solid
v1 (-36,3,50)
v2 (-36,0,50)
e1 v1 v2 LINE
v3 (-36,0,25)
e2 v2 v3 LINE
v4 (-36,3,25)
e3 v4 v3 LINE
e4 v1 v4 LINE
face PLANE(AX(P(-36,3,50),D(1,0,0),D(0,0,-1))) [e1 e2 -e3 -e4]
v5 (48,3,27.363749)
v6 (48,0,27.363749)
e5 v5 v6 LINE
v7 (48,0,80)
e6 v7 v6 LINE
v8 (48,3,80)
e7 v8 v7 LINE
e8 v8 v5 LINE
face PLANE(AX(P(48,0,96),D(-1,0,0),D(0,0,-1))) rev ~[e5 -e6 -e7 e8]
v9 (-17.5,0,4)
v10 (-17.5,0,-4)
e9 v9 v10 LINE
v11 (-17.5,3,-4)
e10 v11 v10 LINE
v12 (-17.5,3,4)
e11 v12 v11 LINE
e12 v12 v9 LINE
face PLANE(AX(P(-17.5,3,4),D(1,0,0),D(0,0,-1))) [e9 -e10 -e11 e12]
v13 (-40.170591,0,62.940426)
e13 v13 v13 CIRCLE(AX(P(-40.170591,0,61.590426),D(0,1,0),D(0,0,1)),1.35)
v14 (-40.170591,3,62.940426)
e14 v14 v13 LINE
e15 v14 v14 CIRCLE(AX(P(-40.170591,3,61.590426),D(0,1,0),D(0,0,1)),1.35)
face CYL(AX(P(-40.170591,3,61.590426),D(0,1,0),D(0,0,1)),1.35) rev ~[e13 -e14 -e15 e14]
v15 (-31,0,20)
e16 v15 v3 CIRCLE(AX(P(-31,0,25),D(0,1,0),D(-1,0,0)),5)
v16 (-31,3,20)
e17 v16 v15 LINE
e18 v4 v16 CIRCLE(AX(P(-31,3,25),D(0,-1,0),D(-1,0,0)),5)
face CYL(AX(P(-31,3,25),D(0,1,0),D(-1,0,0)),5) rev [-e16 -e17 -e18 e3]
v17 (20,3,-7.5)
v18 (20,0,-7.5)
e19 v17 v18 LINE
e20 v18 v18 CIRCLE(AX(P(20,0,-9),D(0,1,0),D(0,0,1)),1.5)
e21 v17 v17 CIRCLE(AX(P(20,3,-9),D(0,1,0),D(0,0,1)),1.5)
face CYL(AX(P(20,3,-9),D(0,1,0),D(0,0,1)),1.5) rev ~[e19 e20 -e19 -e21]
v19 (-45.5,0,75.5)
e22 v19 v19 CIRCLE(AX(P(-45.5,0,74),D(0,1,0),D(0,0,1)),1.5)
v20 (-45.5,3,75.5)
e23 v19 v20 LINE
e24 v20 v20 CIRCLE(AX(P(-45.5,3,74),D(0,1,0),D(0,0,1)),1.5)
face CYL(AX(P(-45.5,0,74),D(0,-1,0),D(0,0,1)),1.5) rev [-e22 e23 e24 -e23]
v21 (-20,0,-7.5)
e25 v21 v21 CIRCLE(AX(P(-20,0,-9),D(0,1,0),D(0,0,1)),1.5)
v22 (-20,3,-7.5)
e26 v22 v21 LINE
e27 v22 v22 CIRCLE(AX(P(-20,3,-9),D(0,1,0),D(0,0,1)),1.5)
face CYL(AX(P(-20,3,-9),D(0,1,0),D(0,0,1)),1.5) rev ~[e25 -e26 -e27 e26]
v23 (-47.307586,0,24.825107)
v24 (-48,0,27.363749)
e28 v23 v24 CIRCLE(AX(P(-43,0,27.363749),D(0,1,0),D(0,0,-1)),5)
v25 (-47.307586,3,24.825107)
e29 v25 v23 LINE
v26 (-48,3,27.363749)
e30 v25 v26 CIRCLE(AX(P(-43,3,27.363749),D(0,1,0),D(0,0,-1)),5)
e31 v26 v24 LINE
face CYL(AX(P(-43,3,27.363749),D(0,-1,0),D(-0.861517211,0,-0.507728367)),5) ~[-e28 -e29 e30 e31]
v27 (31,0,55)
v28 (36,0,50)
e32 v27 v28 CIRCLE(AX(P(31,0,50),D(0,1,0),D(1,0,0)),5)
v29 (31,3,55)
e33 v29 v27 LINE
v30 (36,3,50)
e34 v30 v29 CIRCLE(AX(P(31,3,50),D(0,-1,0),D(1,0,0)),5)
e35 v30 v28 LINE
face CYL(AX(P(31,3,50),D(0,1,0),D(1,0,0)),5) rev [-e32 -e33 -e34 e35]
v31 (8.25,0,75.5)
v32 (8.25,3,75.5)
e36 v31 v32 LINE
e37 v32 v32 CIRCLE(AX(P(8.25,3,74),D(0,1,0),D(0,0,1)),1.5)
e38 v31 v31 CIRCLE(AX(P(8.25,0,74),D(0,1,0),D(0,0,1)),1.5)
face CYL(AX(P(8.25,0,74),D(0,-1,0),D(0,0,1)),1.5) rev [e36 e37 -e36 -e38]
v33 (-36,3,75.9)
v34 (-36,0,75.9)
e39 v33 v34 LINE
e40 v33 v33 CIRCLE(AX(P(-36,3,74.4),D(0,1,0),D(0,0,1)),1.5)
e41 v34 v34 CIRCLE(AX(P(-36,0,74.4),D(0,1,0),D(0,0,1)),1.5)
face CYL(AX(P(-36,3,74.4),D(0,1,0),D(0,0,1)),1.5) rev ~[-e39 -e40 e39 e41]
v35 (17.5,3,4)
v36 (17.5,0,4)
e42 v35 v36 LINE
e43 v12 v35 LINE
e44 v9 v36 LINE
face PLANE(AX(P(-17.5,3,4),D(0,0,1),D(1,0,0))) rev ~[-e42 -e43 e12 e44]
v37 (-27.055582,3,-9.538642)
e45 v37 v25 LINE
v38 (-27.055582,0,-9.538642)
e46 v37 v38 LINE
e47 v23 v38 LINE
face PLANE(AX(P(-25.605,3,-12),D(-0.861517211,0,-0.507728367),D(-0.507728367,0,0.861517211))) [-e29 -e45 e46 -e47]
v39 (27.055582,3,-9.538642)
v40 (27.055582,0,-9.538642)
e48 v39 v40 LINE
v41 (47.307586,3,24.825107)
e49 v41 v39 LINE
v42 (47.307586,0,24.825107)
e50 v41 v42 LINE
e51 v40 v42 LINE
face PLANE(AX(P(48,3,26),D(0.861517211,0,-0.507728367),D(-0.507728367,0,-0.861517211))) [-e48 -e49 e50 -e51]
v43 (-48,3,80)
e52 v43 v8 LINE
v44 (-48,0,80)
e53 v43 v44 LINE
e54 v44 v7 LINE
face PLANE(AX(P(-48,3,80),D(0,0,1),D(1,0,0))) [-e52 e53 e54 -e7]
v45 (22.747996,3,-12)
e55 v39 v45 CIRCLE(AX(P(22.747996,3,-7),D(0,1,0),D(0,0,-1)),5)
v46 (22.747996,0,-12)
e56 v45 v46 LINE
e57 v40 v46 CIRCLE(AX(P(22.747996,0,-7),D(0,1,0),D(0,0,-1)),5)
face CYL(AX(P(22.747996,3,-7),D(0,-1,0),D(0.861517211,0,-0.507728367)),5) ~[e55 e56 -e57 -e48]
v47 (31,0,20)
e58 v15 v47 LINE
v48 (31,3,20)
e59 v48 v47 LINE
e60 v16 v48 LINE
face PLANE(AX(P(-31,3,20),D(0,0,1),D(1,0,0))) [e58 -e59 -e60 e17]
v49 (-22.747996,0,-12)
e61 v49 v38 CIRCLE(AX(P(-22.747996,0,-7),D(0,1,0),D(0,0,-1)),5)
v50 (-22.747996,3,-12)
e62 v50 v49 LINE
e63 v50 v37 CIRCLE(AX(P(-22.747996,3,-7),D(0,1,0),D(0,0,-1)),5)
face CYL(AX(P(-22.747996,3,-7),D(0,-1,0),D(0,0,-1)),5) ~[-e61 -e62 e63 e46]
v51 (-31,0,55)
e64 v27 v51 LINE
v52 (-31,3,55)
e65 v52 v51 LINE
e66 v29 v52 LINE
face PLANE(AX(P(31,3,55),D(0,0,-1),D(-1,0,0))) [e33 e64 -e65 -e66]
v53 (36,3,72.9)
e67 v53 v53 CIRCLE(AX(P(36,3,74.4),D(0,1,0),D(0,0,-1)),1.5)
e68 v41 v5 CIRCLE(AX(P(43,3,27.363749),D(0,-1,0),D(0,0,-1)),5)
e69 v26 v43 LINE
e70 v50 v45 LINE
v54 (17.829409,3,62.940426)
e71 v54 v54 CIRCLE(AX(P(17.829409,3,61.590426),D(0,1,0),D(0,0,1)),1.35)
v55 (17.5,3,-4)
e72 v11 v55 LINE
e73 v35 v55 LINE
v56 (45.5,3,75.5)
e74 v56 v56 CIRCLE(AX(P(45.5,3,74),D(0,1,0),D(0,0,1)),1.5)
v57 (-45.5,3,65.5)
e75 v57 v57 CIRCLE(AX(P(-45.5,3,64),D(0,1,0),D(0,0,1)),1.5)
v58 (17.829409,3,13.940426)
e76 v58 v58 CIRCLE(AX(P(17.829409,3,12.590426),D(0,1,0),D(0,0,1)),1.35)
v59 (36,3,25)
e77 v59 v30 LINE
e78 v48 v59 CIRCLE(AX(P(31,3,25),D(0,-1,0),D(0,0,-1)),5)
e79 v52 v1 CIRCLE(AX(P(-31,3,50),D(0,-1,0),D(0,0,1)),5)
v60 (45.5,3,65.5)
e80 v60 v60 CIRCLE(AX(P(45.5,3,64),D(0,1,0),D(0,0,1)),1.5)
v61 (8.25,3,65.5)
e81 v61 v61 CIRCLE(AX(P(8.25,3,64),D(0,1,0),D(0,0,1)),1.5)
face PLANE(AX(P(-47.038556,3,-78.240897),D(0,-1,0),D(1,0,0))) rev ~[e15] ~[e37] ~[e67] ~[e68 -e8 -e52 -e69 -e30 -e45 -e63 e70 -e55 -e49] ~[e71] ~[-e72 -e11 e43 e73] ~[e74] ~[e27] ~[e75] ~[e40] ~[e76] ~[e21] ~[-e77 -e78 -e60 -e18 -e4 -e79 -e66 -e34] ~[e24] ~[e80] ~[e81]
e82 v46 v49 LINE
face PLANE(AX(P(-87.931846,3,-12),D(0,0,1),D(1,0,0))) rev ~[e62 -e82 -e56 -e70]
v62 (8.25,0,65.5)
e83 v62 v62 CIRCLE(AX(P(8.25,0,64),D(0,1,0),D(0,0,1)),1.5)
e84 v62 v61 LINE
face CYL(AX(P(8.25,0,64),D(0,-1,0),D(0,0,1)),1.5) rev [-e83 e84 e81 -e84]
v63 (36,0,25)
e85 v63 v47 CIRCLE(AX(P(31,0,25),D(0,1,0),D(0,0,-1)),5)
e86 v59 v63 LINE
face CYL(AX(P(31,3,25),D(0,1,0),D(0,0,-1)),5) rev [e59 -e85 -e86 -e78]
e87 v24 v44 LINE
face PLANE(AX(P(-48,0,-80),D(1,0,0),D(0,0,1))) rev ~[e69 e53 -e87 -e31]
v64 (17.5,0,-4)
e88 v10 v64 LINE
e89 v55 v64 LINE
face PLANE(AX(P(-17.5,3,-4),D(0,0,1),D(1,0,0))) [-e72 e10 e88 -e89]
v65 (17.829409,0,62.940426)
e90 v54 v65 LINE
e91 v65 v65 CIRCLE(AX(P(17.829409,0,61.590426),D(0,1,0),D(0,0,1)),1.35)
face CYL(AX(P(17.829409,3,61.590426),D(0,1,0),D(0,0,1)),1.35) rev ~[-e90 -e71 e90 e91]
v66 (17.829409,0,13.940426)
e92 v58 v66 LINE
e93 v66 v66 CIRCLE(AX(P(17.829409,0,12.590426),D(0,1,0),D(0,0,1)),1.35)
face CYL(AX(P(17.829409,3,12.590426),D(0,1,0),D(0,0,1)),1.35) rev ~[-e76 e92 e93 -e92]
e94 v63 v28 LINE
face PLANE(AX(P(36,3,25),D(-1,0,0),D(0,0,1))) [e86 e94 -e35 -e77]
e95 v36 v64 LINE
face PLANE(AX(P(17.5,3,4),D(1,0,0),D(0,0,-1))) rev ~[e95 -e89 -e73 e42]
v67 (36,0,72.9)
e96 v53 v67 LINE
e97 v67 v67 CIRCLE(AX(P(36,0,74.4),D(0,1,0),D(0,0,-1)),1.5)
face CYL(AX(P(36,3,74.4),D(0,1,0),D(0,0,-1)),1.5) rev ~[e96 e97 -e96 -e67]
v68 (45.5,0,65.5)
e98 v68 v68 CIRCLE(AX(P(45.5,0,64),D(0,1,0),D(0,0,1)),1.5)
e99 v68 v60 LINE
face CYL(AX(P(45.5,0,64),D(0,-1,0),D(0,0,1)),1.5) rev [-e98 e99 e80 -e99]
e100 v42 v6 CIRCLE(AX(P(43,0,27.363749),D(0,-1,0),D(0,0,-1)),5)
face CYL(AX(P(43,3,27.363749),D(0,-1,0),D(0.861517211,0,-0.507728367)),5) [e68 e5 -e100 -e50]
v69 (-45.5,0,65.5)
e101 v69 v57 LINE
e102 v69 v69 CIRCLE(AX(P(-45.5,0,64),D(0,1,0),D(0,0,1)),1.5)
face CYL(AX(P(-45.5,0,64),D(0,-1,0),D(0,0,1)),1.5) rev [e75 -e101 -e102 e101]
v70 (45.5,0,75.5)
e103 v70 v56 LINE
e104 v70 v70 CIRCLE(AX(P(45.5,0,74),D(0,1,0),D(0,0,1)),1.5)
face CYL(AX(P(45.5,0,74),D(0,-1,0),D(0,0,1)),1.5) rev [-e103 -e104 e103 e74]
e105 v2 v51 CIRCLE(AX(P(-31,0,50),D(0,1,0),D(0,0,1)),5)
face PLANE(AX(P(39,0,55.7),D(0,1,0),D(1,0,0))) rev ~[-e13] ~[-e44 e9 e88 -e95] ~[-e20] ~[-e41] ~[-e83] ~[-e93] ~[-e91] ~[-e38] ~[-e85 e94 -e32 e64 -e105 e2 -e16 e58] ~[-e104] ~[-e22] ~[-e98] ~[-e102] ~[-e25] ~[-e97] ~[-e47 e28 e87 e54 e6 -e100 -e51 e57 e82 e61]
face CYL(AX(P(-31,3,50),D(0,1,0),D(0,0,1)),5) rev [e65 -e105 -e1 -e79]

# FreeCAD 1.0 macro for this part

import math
import FreeCAD as App
import Part
import Sketcher


def edges_at(feature, points):
    """Names of the edges that pass closest to the given points."""
    edges = feature.Shape.Edges
    near = lambda p: min(range(len(edges)), key=lambda i: edges[i].distToShape(Part.Vertex(*p))[0])
    return sorted({f"Edge{near(p) + 1}" for p in points})

doc = App.newDocument("Part")
body = doc.addObject("PartDesign::Body", "Body")

sketch1 = body.newObject("Sketcher::SketchObject", "Sketch")
sketch1.AttachmentSupport = (doc.getObject("XZ_Plane"), [""])
sketch1.MapMode = "FlatFace"
sketch1.addGeometry([
    Part.LineSegment(App.Vector(-48, -80, 0), App.Vector(-48, 96, 0)),
    Part.LineSegment(App.Vector(-48, 96, 0), App.Vector(48, 96, 0)),
    Part.LineSegment(App.Vector(48, 96, 0), App.Vector(48, -80, 0)),
    Part.LineSegment(App.Vector(48, -80, 0), App.Vector(-48, -80, 0)),
    Part.Circle(App.Vector(45.55, 90, 0), App.Vector(0, 0, 1), 1.5),
    Part.Circle(App.Vector(17.55, 90, 0), App.Vector(0, 0, 1), 1.5),
    Part.Circle(App.Vector(45.5, 74, 0), App.Vector(0, 0, 1), 1.5),
    Part.Circle(App.Vector(45.5, 64, 0), App.Vector(0, 0, 1), 1.5),
    Part.Circle(App.Vector(8.25, 74, 0), App.Vector(0, 0, 1), 1.5),
    Part.Circle(App.Vector(8.25, 64, 0), App.Vector(0, 0, 1), 1.5),
    Part.Circle(App.Vector(-17.55, 90, 0), App.Vector(0, 0, 1), 1.5),
    Part.Circle(App.Vector(-45.55, 90, 0), App.Vector(0, 0, 1), 1.5),
    Part.Circle(App.Vector(-45.5, 74, 0), App.Vector(0, 0, 1), 1.5),
    Part.Circle(App.Vector(-45.5, 64, 0), App.Vector(0, 0, 1), 1.5),
    Part.LineSegment(App.Vector(43, 80, 0), App.Vector(34.5, 80, 0)),
    Part.LineSegment(App.Vector(34.5, 80, 0), App.Vector(34.5, 31.4, 0)),
    Part.LineSegment(App.Vector(34.5, 31.4, 0), App.Vector(43.5, 31.4, 0)),
    Part.LineSegment(App.Vector(43.5, 31.4, 0), App.Vector(43.5, 58, 0)),
    Part.LineSegment(App.Vector(43.5, 58, 0), App.Vector(43, 58, 0)),
    Part.LineSegment(App.Vector(43, 58, 0), App.Vector(43, 80, 0)),
    Part.Circle(App.Vector(15.320886, 52.530687, 0), App.Vector(0, 0, 1), 1.65),
    Part.Circle(App.Vector(0.259512, 52.530687, 0), App.Vector(0, 0, 1), 1.65),
    Part.LineSegment(App.Vector(19.5, 59.4, 0), App.Vector(19.5, 31.4, 0)),
    Part.LineSegment(App.Vector(19.5, 31.4, 0), App.Vector(25.5, 31.4, 0)),
    Part.LineSegment(App.Vector(25.5, 31.4, 0), App.Vector(25.5, 59.4, 0)),
    Part.LineSegment(App.Vector(25.5, 59.4, 0), App.Vector(19.5, 59.4, 0)),
    Part.Circle(App.Vector(15.320886, 37.469313, 0), App.Vector(0, 0, 1), 1.65),
    Part.Circle(App.Vector(0.259512, 37.469313, 0), App.Vector(0, 0, 1), 1.65),
], False)
sketch1.addConstraint([
    Sketcher.Constraint("Coincident", 0, 2, 1, 1),
    Sketcher.Constraint("Coincident", 1, 2, 2, 1),
    Sketcher.Constraint("Coincident", 2, 2, 3, 1),
    Sketcher.Constraint("Coincident", 3, 2, 0, 1),
    Sketcher.Constraint("Coincident", 14, 2, 15, 1),
    Sketcher.Constraint("Coincident", 15, 2, 16, 1),
    Sketcher.Constraint("Coincident", 16, 2, 17, 1),
    Sketcher.Constraint("Coincident", 17, 2, 18, 1),
    Sketcher.Constraint("Coincident", 18, 2, 19, 1),
    Sketcher.Constraint("Coincident", 19, 2, 14, 1),
    Sketcher.Constraint("Coincident", 22, 2, 23, 1),
    Sketcher.Constraint("Coincident", 23, 2, 24, 1),
    Sketcher.Constraint("Coincident", 24, 2, 25, 1),
    Sketcher.Constraint("Coincident", 25, 2, 22, 1),
    Sketcher.Constraint("Vertical", 0),
    Sketcher.Constraint("Horizontal", 1),
    Sketcher.Constraint("Vertical", 2),
    Sketcher.Constraint("Horizontal", 3),
    Sketcher.Constraint("Horizontal", 14),
    Sketcher.Constraint("Vertical", 15),
    Sketcher.Constraint("Horizontal", 16),
    Sketcher.Constraint("Vertical", 17),
    Sketcher.Constraint("Horizontal", 18),
    Sketcher.Constraint("Vertical", 19),
    Sketcher.Constraint("Vertical", 22),
    Sketcher.Constraint("Horizontal", 23),
    Sketcher.Constraint("Vertical", 24),
    Sketcher.Constraint("Horizontal", 25),
    Sketcher.Constraint("Equal", 4, 5),
    Sketcher.Constraint("Equal", 5, 6),
    Sketcher.Constraint("Equal", 6, 7),
    Sketcher.Constraint("Equal", 7, 8),
    Sketcher.Constraint("Equal", 8, 9),
    Sketcher.Constraint("Equal", 9, 10),
    Sketcher.Constraint("Equal", 10, 11),
    Sketcher.Constraint("Equal", 11, 12),
    Sketcher.Constraint("Equal", 12, 13),
    Sketcher.Constraint("Equal", 20, 21),
    Sketcher.Constraint("Equal", 21, 26),
    Sketcher.Constraint("Equal", 26, 27),
    Sketcher.Constraint("Symmetric", 5, 3, 10, 3, -2),
    Sketcher.Constraint("Symmetric", 4, 3, 11, 3, -2),
    Sketcher.Constraint("Symmetric", 6, 3, 12, 3, -2),
    Sketcher.Constraint("Symmetric", 7, 3, 13, 3, -2),
    Sketcher.Constraint("Horizontal", 4, 3, 5, 3),
    Sketcher.Constraint("Horizontal", 6, 3, 8, 3),
    Sketcher.Constraint("Horizontal", 7, 3, 9, 3),
    Sketcher.Constraint("Horizontal", 20, 3, 21, 3),
    Sketcher.Constraint("Horizontal", 26, 3, 27, 3),
    Sketcher.Constraint("Horizontal", 16, 2, 22, 2),
    Sketcher.Constraint("Vertical", 6, 3, 7, 3),
    Sketcher.Constraint("Vertical", 8, 3, 9, 3),
    Sketcher.Constraint("Vertical", 20, 3, 26, 3),
    Sketcher.Constraint("Vertical", 21, 3, 27, 3),
    Sketcher.Constraint("Diameter", 4, 3.0),
    Sketcher.Constraint("Diameter", 20, 3.3),
    Sketcher.Constraint("DistanceX", 1, 1, 1, 2, 96.0),
    Sketcher.Constraint("DistanceX", 16, 1, 16, 2, 9.0),
    Sketcher.Constraint("DistanceX", 23, 1, 23, 2, 6.0),
    Sketcher.Constraint("DistanceY", 0, 1, 0, 2, 176.0),
    Sketcher.Constraint("DistanceY", 19, 1, 19, 2, 22.0),
    Sketcher.Constraint("DistanceY", 22, 2, 22, 1, 28.0),
    Sketcher.Constraint("DistanceX", 14, 2, 14, 1, 8.5),
    Sketcher.Constraint("DistanceY", 15, 2, 15, 1, 48.6),
    Sketcher.Constraint("DistanceY", -1, 1, 4, 3, 90.0),
    Sketcher.Constraint("DistanceY", -1, 1, 6, 3, 74.0),
    Sketcher.Constraint("DistanceY", -1, 1, 7, 3, 64.0),
    Sketcher.Constraint("DistanceX", 0, 2, -1, 1, 48.0),
    Sketcher.Constraint("DistanceY", -1, 1, 0, 2, 96.0),
    Sketcher.Constraint("DistanceY", -1, 1, 14, 2, 80.0),
    Sketcher.Constraint("DistanceX", -1, 1, 18, 2, 43.0),
    Sketcher.Constraint("DistanceX", 5, 3, 4, 3, 28.0),
    Sketcher.Constraint("DistanceX", 14, 2, 6, 3, 11.0),
    Sketcher.Constraint("DistanceX", 22, 2, 15, 2, 15.0),
    Sketcher.Constraint("DistanceX", 8, 3, 5, 3, 9.3),
    Sketcher.Constraint("DistanceX", 10, 3, 8, 3, 25.8),
    Sketcher.Constraint("DistanceX", -1, 1, 21, 3, 0.259512),
    Sketcher.Constraint("DistanceX", -1, 1, 20, 3, 15.320886),
    Sketcher.Constraint("DistanceY", -1, 1, 20, 3, 52.530687),
    Sketcher.Constraint("DistanceY", -1, 1, 26, 3, 37.469313),
])
pad1 = body.newObject("PartDesign::Pad", "Pad")
pad1.Profile = sketch1
pad1.Length = 3
pad1.Reversed = True

sketch2 = body.newObject("Sketcher::SketchObject", "Sketch001")
sketch2.AttachmentSupport = (doc.getObject("XZ_Plane"), [""])
sketch2.MapMode = "FlatFace"
sketch2.AttachmentOffset = App.Placement(App.Vector(0, 0, -3), App.Rotation())
sketch2.addGeometry(Part.Circle(App.Vector(0, -9, 0), App.Vector(0, 0, 1), 1.5), False)
sketch2.addConstraint([
    Sketcher.Constraint("PointOnObject", 0, 3, -2),
    Sketcher.Constraint("Diameter", 0, 3.0),
    Sketcher.Constraint("DistanceY", 0, 3, -1, 1, 9.0),
])
pocket1 = body.newObject("PartDesign::Pocket", "Pocket")
pocket1.Profile = sketch2
pocket1.Type = "UpToFirst"
pocket1.Reversed = True

sketch3 = body.newObject("Sketcher::SketchObject", "Sketch002")
sketch3.AttachmentSupport = (doc.getObject("XZ_Plane"), [""])
sketch3.MapMode = "FlatFace"
sketch3.AttachmentOffset = App.Placement(App.Vector(0, 0, -3), App.Rotation())
sketch3.addGeometry([
    Part.LineSegment(App.Vector(25.605, -80, 0), App.Vector(25.605, -12, 0)),
    Part.LineSegment(App.Vector(25.605, -12, 0), App.Vector(48, -12, 0)),
    Part.LineSegment(App.Vector(48, -12, 0), App.Vector(48, -80, 0)),
    Part.LineSegment(App.Vector(48, -80, 0), App.Vector(25.605, -80, 0)),
], False)
sketch3.addConstraint([
    Sketcher.Constraint("Coincident", 0, 2, 1, 1),
    Sketcher.Constraint("Coincident", 1, 2, 2, 1),
    Sketcher.Constraint("Coincident", 2, 2, 3, 1),
    Sketcher.Constraint("Coincident", 3, 2, 0, 1),
    Sketcher.Constraint("Vertical", 0),
    Sketcher.Constraint("Horizontal", 1),
    Sketcher.Constraint("Vertical", 2),
    Sketcher.Constraint("Horizontal", 3),
    Sketcher.Constraint("DistanceY", 0, 1, 0, 2, 68.0),
    Sketcher.Constraint("DistanceY", 0, 2, -1, 1, 12.0),
    Sketcher.Constraint("DistanceX", -1, 1, 1, 2, 48.0),
    Sketcher.Constraint("DistanceX", 1, 1, 1, 2, 22.395),
])
pocket2 = body.newObject("PartDesign::Pocket", "Pocket001")
pocket2.Profile = sketch3
pocket2.Type = "UpToFirst"
pocket2.Reversed = True

sketch4 = body.newObject("Sketcher::SketchObject", "Sketch003")
sketch4.AttachmentSupport = (doc.getObject("XZ_Plane"), [""])
sketch4.MapMode = "FlatFace"
sketch4.AttachmentOffset = App.Placement(App.Vector(0, 0, -3), App.Rotation())
sketch4.addGeometry([
    Part.LineSegment(App.Vector(-48, -80, 0), App.Vector(-48, -12, 0)),
    Part.LineSegment(App.Vector(-48, -12, 0), App.Vector(-25.605, -12, 0)),
    Part.LineSegment(App.Vector(-25.605, -12, 0), App.Vector(-25.605, -80, 0)),
    Part.LineSegment(App.Vector(-25.605, -80, 0), App.Vector(-48, -80, 0)),
], False)
sketch4.addConstraint([
    Sketcher.Constraint("Coincident", 0, 2, 1, 1),
    Sketcher.Constraint("Coincident", 1, 2, 2, 1),
    Sketcher.Constraint("Coincident", 2, 2, 3, 1),
    Sketcher.Constraint("Coincident", 3, 2, 0, 1),
    Sketcher.Constraint("Vertical", 0),
    Sketcher.Constraint("Horizontal", 1),
    Sketcher.Constraint("Vertical", 2),
    Sketcher.Constraint("Horizontal", 3),
    Sketcher.Constraint("DistanceY", 0, 1, 0, 2, 68.0),
    Sketcher.Constraint("DistanceX", 0, 2, -1, 1, 48.0),
    Sketcher.Constraint("DistanceY", 0, 2, -1, 1, 12.0),
    Sketcher.Constraint("DistanceX", 1, 1, 1, 2, 22.395),
])
pocket3 = body.newObject("PartDesign::Pocket", "Pocket002")
pocket3.Profile = sketch4
pocket3.Type = "UpToFirst"
pocket3.Reversed = True

sketch5 = body.newObject("Sketcher::SketchObject", "Sketch004")
sketch5.AttachmentSupport = (doc.getObject("XZ_Plane"), [""])
sketch5.MapMode = "FlatFace"
sketch5.AttachmentOffset = App.Placement(App.Vector(0, 0, -3), App.Rotation())
sketch5.addGeometry([
    Part.LineSegment(App.Vector(-25.605, -85, 0), App.Vector(-25.605, -80, 0)),
    Part.LineSegment(App.Vector(-25.605, -80, 0), App.Vector(25.605, -80, 0)),
    Part.LineSegment(App.Vector(25.605, -80, 0), App.Vector(25.605, -85, 0)),
    Part.LineSegment(App.Vector(25.605, -85, 0), App.Vector(-25.605, -85, 0)),
], False)
sketch5.addConstraint([
    Sketcher.Constraint("Coincident", 0, 2, 1, 1),
    Sketcher.Constraint("Coincident", 1, 2, 2, 1),
    Sketcher.Constraint("Coincident", 2, 2, 3, 1),
    Sketcher.Constraint("Coincident", 3, 2, 0, 1),
    Sketcher.Constraint("Vertical", 0),
    Sketcher.Constraint("Horizontal", 1),
    Sketcher.Constraint("Vertical", 2),
    Sketcher.Constraint("Horizontal", 3),
    Sketcher.Constraint("DistanceY", 0, 1, 0, 2, 5.0),
    Sketcher.Constraint("DistanceY", 0, 2, -1, 1, 80.0),
    Sketcher.Constraint("DistanceX", 1, 1, 1, 2, 51.21),
    Sketcher.Constraint("DistanceX", 0, 2, -1, 1, 25.605),
])
pad2 = body.newObject("PartDesign::Pad", "Pad001")
pad2.Profile = sketch5
pad2.Length = 3

sketch6 = body.newObject("Sketcher::SketchObject", "Sketch005")
sketch6.AttachmentSupport = (doc.getObject("XZ_Plane"), [""])
sketch6.MapMode = "FlatFace"
sketch6.AttachmentOffset = App.Placement(App.Vector(0, 0, -3), App.Rotation())
sketch6.addGeometry(Part.Circle(App.Vector(-17.8495, -79.268381, 0), App.Vector(0, 0, 1), 1.5), False)
sketch6.addConstraint([
    Sketcher.Constraint("Diameter", 0, 3.0),
    Sketcher.Constraint("DistanceX", 0, 3, -1, 1, 17.8495),
    Sketcher.Constraint("DistanceY", 0, 3, -1, 1, 79.268381),
])
pocket4 = body.newObject("PartDesign::Pocket", "Pocket003")
pocket4.Profile = sketch6
pocket4.Type = "UpToFirst"
pocket4.Reversed = True

sketch7 = body.newObject("Sketcher::SketchObject", "Sketch006")
sketch7.AttachmentSupport = (doc.getObject("XZ_Plane"), [""])
sketch7.MapMode = "FlatFace"
sketch7.AttachmentOffset = App.Placement(App.Vector(0, 0, -3), App.Rotation())
sketch7.addGeometry(Part.Circle(App.Vector(17.8495, -79.268381, 0), App.Vector(0, 0, 1), 1.5), False)
sketch7.addConstraint([
    Sketcher.Constraint("Diameter", 0, 3.0),
    Sketcher.Constraint("DistanceX", -1, 1, 0, 3, 17.8495),
    Sketcher.Constraint("DistanceY", 0, 3, -1, 1, 79.268381),
])
pocket5 = body.newObject("PartDesign::Pocket", "Pocket004")
pocket5.Profile = sketch7
pocket5.Type = "UpToFirst"
pocket5.Reversed = True

sketch8 = body.newObject("Sketcher::SketchObject", "Sketch007")
sketch8.AttachmentSupport = (doc.getObject("XZ_Plane"), [""])
sketch8.MapMode = "FlatFace"
sketch8.AttachmentOffset = App.Placement(App.Vector(0, 0, -3), App.Rotation())
sketch8.addGeometry(Part.Circle(App.Vector(-22.690797, -44, 0), App.Vector(0, 0, 1), 1.5), False)
sketch8.addConstraint([
    Sketcher.Constraint("Diameter", 0, 3.0),
    Sketcher.Constraint("DistanceY", 0, 3, -1, 1, 44.0),
    Sketcher.Constraint("DistanceX", 0, 3, -1, 1, 22.690797),
])
pocket6 = body.newObject("PartDesign::Pocket", "Pocket005")
pocket6.Profile = sketch8
pocket6.Type = "UpToFirst"
pocket6.Reversed = True

sketch9 = body.newObject("Sketcher::SketchObject", "Sketch008")
sketch9.AttachmentSupport = (doc.getObject("XZ_Plane"), [""])
sketch9.MapMode = "FlatFace"
sketch9.AttachmentOffset = App.Placement(App.Vector(0, 0, -3), App.Rotation())
sketch9.addGeometry(Part.Circle(App.Vector(22.690797, -44, 0), App.Vector(0, 0, 1), 1.5), False)
sketch9.addConstraint([
    Sketcher.Constraint("Diameter", 0, 3.0),
    Sketcher.Constraint("DistanceY", 0, 3, -1, 1, 44.0),
    Sketcher.Constraint("DistanceX", -1, 1, 0, 3, 22.690797),
])
pocket7 = body.newObject("PartDesign::Pocket", "Pocket006")
pocket7.Profile = sketch9
pocket7.Type = "UpToFirst"
pocket7.Reversed = True

sketch10 = body.newObject("Sketcher::SketchObject", "Sketch009")
sketch10.AttachmentSupport = (doc.getObject("XZ_Plane"), [""])
sketch10.MapMode = "FlatFace"
sketch10.AttachmentOffset = App.Placement(App.Vector(0, 0, -3), App.Rotation())
sketch10.addGeometry([
    Part.LineSegment(App.Vector(25.605, -12, 0), App.Vector(48, 26, 0)),
    Part.LineSegment(App.Vector(48, 26, 0), App.Vector(48, -12, 0)),
    Part.LineSegment(App.Vector(48, -12, 0), App.Vector(25.605, -12, 0)),
], False)
sketch10.addConstraint([
    Sketcher.Constraint("Coincident", 0, 2, 1, 1),
    Sketcher.Constraint("Coincident", 1, 2, 2, 1),
    Sketcher.Constraint("Coincident", 2, 2, 0, 1),
    Sketcher.Constraint("Vertical", 1),
    Sketcher.Constraint("Horizontal", 2),
    Sketcher.Constraint("DistanceY", 1, 2, 1, 1, 38.0),
    Sketcher.Constraint("DistanceX", -1, 1, 0, 2, 48.0),
    Sketcher.Constraint("DistanceY", -1, 1, 0, 2, 26.0),
    Sketcher.Constraint("DistanceX", 2, 2, 2, 1, 22.395),
])
pocket8 = body.newObject("PartDesign::Pocket", "Pocket007")
pocket8.Profile = sketch10
pocket8.Type = "UpToFirst"
pocket8.Reversed = True

sketch11 = body.newObject("Sketcher::SketchObject", "Sketch010")
sketch11.AttachmentSupport = (doc.getObject("XZ_Plane"), [""])
sketch11.MapMode = "FlatFace"
sketch11.AttachmentOffset = App.Placement(App.Vector(0, 0, -3), App.Rotation())
sketch11.addGeometry([
    Part.LineSegment(App.Vector(-48, -12, 0), App.Vector(-48, 26, 0)),
    Part.LineSegment(App.Vector(-48, 26, 0), App.Vector(-25.605, -12, 0)),
    Part.LineSegment(App.Vector(-25.605, -12, 0), App.Vector(-48, -12, 0)),
], False)
sketch11.addConstraint([
    Sketcher.Constraint("Coincident", 0, 2, 1, 1),
    Sketcher.Constraint("Coincident", 1, 2, 2, 1),
    Sketcher.Constraint("Coincident", 2, 2, 0, 1),
    Sketcher.Constraint("Vertical", 0),
    Sketcher.Constraint("Horizontal", 2),
    Sketcher.Constraint("DistanceY", 0, 1, 0, 2, 38.0),
    Sketcher.Constraint("DistanceX", 0, 2, -1, 1, 48.0),
    Sketcher.Constraint("DistanceY", -1, 1, 0, 2, 26.0),
    Sketcher.Constraint("DistanceX", 2, 2, 2, 1, 22.395),
])
pocket9 = body.newObject("PartDesign::Pocket", "Pocket008")
pocket9.Profile = sketch11
pocket9.Type = "UpToFirst"
pocket9.Reversed = True

sketch12 = body.newObject("Sketcher::SketchObject", "Sketch011")
sketch12.AttachmentSupport = (doc.getObject("XZ_Plane"), [""])
sketch12.MapMode = "FlatFace"
sketch12.addGeometry([
    Part.LineSegment(App.Vector(-45.873799, -40.351536, 0), App.Vector(-25.605, -52.641311, 0)),
    Part.LineSegment(App.Vector(-25.605, -52.641311, 0), App.Vector(-25.605, -35.641311, 0)),
    Part.LineSegment(App.Vector(-25.605, -35.641311, 0), App.Vector(-31.796656, -35.641311, 0)),
    Part.LineSegment(App.Vector(-31.796656, -35.641311, 0), App.Vector(-42.885372, -33.037115, 0)),
    Part.ArcOfCircle(Part.Circle(App.Vector(-43.799894, -36.931168, 0), App.Vector(0, 0, 1), 4), math.radians(76.783537), math.radians(238.769908)),
    Part.Circle(App.Vector(-32.930329, -41.931168, 0), App.Vector(0, 0, 1), 1.5),
    Part.Circle(App.Vector(-43.799894, -36.931168, 0), App.Vector(0, 0, 1), 2.5),
    Part.LineSegment(App.Vector(25.605, -35.641311, 0), App.Vector(25.605, -52.641311, 0)),
    Part.LineSegment(App.Vector(25.605, -52.641311, 0), App.Vector(45.873799, -40.351536, 0)),
    Part.ArcOfCircle(Part.Circle(App.Vector(43.799894, -36.931168, 0), App.Vector(0, 0, 1), 4), math.radians(-58.769908), math.radians(103.216463)),
    Part.LineSegment(App.Vector(42.885372, -33.037115, 0), App.Vector(31.796656, -35.641311, 0)),
    Part.LineSegment(App.Vector(31.796656, -35.641311, 0), App.Vector(25.605, -35.641311, 0)),
    Part.Circle(App.Vector(32.930329, -41.931168, 0), App.Vector(0, 0, 1), 1.5),
    Part.Circle(App.Vector(43.799894, -36.931168, 0), App.Vector(0, 0, 1), 2.5),
], False)
sketch12.addConstraint([
    Sketcher.Constraint("Coincident", 0, 2, 1, 1),
    Sketcher.Constraint("Coincident", 1, 2, 2, 1),
    Sketcher.Constraint("Coincident", 2, 2, 3, 1),
    Sketcher.Constraint("Tangent", 3, 2, 4, 1),
    Sketcher.Constraint("Tangent", 4, 2, 0, 1),
    Sketcher.Constraint("Coincident", 7, 2, 8, 1),
    Sketcher.Constraint("Tangent", 8, 2, 9, 1),
    Sketcher.Constraint("Tangent", 9, 2, 10, 1),
    Sketcher.Constraint("Coincident", 10, 2, 11, 1),
    Sketcher.Constraint("Coincident", 11, 2, 7, 1),
    Sketcher.Constraint("Vertical", 1),
    Sketcher.Constraint("Horizontal", 2),
    Sketcher.Constraint("Vertical", 7),
    Sketcher.Constraint("Horizontal", 11),
    Sketcher.Constraint("Coincident", 6, 3, 4, 3),
    Sketcher.Constraint("Coincident", 13, 3, 9, 3),
    Sketcher.Constraint("Equal", 4, 9),
    Sketcher.Constraint("Equal", 5, 12),
    Sketcher.Constraint("Equal", 6, 13),
    Sketcher.Constraint("Symmetric", 4, 3, 9, 3, -2),
    Sketcher.Constraint("Symmetric", 5, 3, 12, 3, -2),
    Sketcher.Constraint("Symmetric", 0, 2, 7, 2, -2),
    Sketcher.Constraint("Symmetric", 2, 2, 10, 2, -2),
    Sketcher.Constraint("Diameter", 5, 3.0),
    Sketcher.Constraint("Diameter", 6, 5.0),
    Sketcher.Constraint("Radius", 4, 4.0),
    Sketcher.Constraint("DistanceY", 1, 1, 1, 2, 17.0),
    Sketcher.Constraint("DistanceY", 5, 3, 4, 3, 5.0),
    Sketcher.Constraint("DistanceX", 0, 2, 7, 2, 51.21),
    Sketcher.Constraint("DistanceX", 4, 2, -1, 1, 45.873799),
    Sketcher.Constraint("Distance", 3, 11.390411),
    Sketcher.Constraint("DistanceX", 2, 2, 2, 1, 6.191656),
    Sketcher.Constraint("DistanceX", 5, 3, -1, 1, 32.930329),
    Sketcher.Constraint("DistanceY", 0, 2, -1, 1, 52.641311),
])
pad3 = body.newObject("PartDesign::Pad", "Pad002")
pad3.Profile = sketch12
pad3.Length = 3
pad3.Reversed = True

sketch13 = body.newObject("Sketcher::SketchObject", "Sketch012")
sketch13.AttachmentSupport = (doc.getObject("XZ_Plane"), [""])
sketch13.MapMode = "FlatFace"
sketch13.addGeometry([
    Part.LineSegment(App.Vector(-11.899894, -39.441311, 0), App.Vector(-11.899894, -54.741311, 0)),
    Part.LineSegment(App.Vector(-11.899894, -54.741311, 0), App.Vector(12.200106, -54.741311, 0)),
    Part.LineSegment(App.Vector(12.200106, -54.741311, 0), App.Vector(12.200106, -39.441311, 0)),
    Part.LineSegment(App.Vector(12.200106, -39.441311, 0), App.Vector(17.036432, -39.441311, 0)),
    Part.LineSegment(App.Vector(17.036432, -39.441311, 0), App.Vector(17.164018, -32.041311, 0)),
    Part.LineSegment(App.Vector(17.164018, -32.041311, 0), App.Vector(12.200106, -32.041311, 0)),
    Part.LineSegment(App.Vector(12.200106, -32.041311, 0), App.Vector(12.200106, -19.091311, 0)),
    Part.LineSegment(App.Vector(12.200106, -19.091311, 0), App.Vector(-3.799894, -19.091311, 0)),
    Part.LineSegment(App.Vector(-3.799894, -19.091311, 0), App.Vector(-3.799894, -30.391311, 0)),
    Part.LineSegment(App.Vector(-3.799894, -30.391311, 0), App.Vector(-11.899894, -30.391311, 0)),
    Part.LineSegment(App.Vector(-11.899894, -30.391311, 0), App.Vector(-11.899894, -32.041311, 0)),
    Part.LineSegment(App.Vector(-11.899894, -32.041311, 0), App.Vector(-16.849894, -32.041311, 0)),
    Part.LineSegment(App.Vector(-16.849894, -32.041311, 0), App.Vector(-16.849894, -39.441311, 0)),
    Part.LineSegment(App.Vector(-16.849894, -39.441311, 0), App.Vector(-11.899894, -39.441311, 0)),
], False)
sketch13.addConstraint([
    Sketcher.Constraint("Coincident", 0, 2, 1, 1),
    Sketcher.Constraint("Coincident", 1, 2, 2, 1),
    Sketcher.Constraint("Coincident", 2, 2, 3, 1),
    Sketcher.Constraint("Coincident", 3, 2, 4, 1),
    Sketcher.Constraint("Coincident", 4, 2, 5, 1),
    Sketcher.Constraint("Coincident", 5, 2, 6, 1),
    Sketcher.Constraint("Coincident", 6, 2, 7, 1),
    Sketcher.Constraint("Coincident", 7, 2, 8, 1),
    Sketcher.Constraint("Coincident", 8, 2, 9, 1),
    Sketcher.Constraint("Coincident", 9, 2, 10, 1),
    Sketcher.Constraint("Coincident", 10, 2, 11, 1),
    Sketcher.Constraint("Coincident", 11, 2, 12, 1),
    Sketcher.Constraint("Coincident", 12, 2, 13, 1),
    Sketcher.Constraint("Coincident", 13, 2, 0, 1),
    Sketcher.Constraint("Vertical", 0),
    Sketcher.Constraint("Horizontal", 1),
    Sketcher.Constraint("Vertical", 2),
    Sketcher.Constraint("Horizontal", 3),
    Sketcher.Constraint("Horizontal", 5),
    Sketcher.Constraint("Vertical", 6),
    Sketcher.Constraint("Horizontal", 7),
    Sketcher.Constraint("Vertical", 8),
    Sketcher.Constraint("Horizontal", 9),
    Sketcher.Constraint("Vertical", 10),
    Sketcher.Constraint("Horizontal", 11),
    Sketcher.Constraint("Vertical", 12),
    Sketcher.Constraint("Horizontal", 13),
    Sketcher.Constraint("Horizontal", 5, 2, 10, 2),
    Sketcher.Constraint("Horizontal", 3, 2, 12, 2),
    Sketcher.Constraint("Vertical", 2, 2, 5, 2),
    Sketcher.Constraint("Vertical", 0, 2, 9, 2),
    Sketcher.Constraint("DistanceX", 7, 2, 7, 1, 16.0),
    Sketcher.Constraint("DistanceX", 1, 1, 1, 2, 24.1),
    Sketcher.Constraint("DistanceY", 0, 2, 0, 1, 15.3),
    Sketcher.Constraint("DistanceY", 8, 2, 8, 1, 11.3),
    Sketcher.Constraint("DistanceY", 12, 2, 12, 1, 7.4),
    Sketcher.Constraint("DistanceX", 11, 2, 11, 1, 4.95),
    Sketcher.Constraint("DistanceY", 6, 1, 6, 2, 12.95),
    Sketcher.Constraint("Distance", 4, 7.4011),
    Sketcher.Constraint("DistanceX", 3, 1, 3, 2, 4.836326),
    Sketcher.Constraint("DistanceY", 0, 2, -1, 1, 54.741311),
    Sketcher.Constraint("DistanceX", -1, 1, 3, 2, 17.036432),
])
pocket10 = body.newObject("PartDesign::Pocket", "Pocket009")
pocket10.Profile = sketch13
pocket10.Type = "UpToFirst"

sketch14 = body.newObject("Sketcher::SketchObject", "Sketch013")
sketch14.AttachmentSupport = (doc.getObject("XZ_Plane"), [""])
sketch14.MapMode = "FlatFace"
sketch14.AttachmentOffset = App.Placement(App.Vector(0, 0, -3), App.Rotation())
sketch14.addGeometry([
    Part.LineSegment(App.Vector(-16.849894, -29.041311, 0), App.Vector(-16.849894, -44.041311, 0)),
    Part.LineSegment(App.Vector(-16.849894, -44.041311, 0), App.Vector(-11.899894, -44.041311, 0)),
    Part.LineSegment(App.Vector(-11.899894, -44.041311, 0), App.Vector(-11.899894, -29.041311, 0)),
    Part.LineSegment(App.Vector(-11.899894, -29.041311, 0), App.Vector(-16.849894, -29.041311, 0)),
    Part.LineSegment(App.Vector(12.200106, -29.041311, 0), App.Vector(12.200106, -44.041311, 0)),
    Part.LineSegment(App.Vector(12.200106, -44.041311, 0), App.Vector(17.150106, -44.041311, 0)),
    Part.LineSegment(App.Vector(17.150106, -44.041311, 0), App.Vector(17.150106, -29.041311, 0)),
    Part.LineSegment(App.Vector(17.150106, -29.041311, 0), App.Vector(12.200106, -29.041311, 0)),
    Part.LineSegment(App.Vector(12.200106, -46.607961, 0), App.Vector(12.200106, -51.375957, 0)),
    Part.LineSegment(App.Vector(12.200106, -51.375957, 0), App.Vector(18.278869, -51.375957, 0)),
    Part.LineSegment(App.Vector(18.278869, -51.375957, 0), App.Vector(18.278869, -46.607961, 0)),
    Part.LineSegment(App.Vector(18.278869, -46.607961, 0), App.Vector(12.200106, -46.607961, 0)),
], False)
sketch14.addConstraint([
    Sketcher.Constraint("Coincident", 0, 2, 1, 1),
    Sketcher.Constraint("Coincident", 1, 2, 2, 1),
    Sketcher.Constraint("Coincident", 2, 2, 3, 1),
    Sketcher.Constraint("Coincident", 3, 2, 0, 1),
    Sketcher.Constraint("Coincident", 4, 2, 5, 1),
    Sketcher.Constraint("Coincident", 5, 2, 6, 1),
    Sketcher.Constraint("Coincident", 6, 2, 7, 1),
    Sketcher.Constraint("Coincident", 7, 2, 4, 1),
    Sketcher.Constraint("Coincident", 8, 2, 9, 1),
    Sketcher.Constraint("Coincident", 9, 2, 10, 1),
    Sketcher.Constraint("Coincident", 10, 2, 11, 1),
    Sketcher.Constraint("Coincident", 11, 2, 8, 1),
    Sketcher.Constraint("Vertical", 0),
    Sketcher.Constraint("Horizontal", 1),
    Sketcher.Constraint("Vertical", 2),
    Sketcher.Constraint("Horizontal", 3),
    Sketcher.Constraint("Vertical", 4),
    Sketcher.Constraint("Horizontal", 5),
    Sketcher.Constraint("Vertical", 6),
    Sketcher.Constraint("Horizontal", 7),
    Sketcher.Constraint("Vertical", 8),
    Sketcher.Constraint("Horizontal", 9),
    Sketcher.Constraint("Vertical", 10),
    Sketcher.Constraint("Horizontal", 11),
    Sketcher.Constraint("Horizontal", 1, 2, 4, 2),
    Sketcher.Constraint("Horizontal", 3, 2, 6, 2),
    Sketcher.Constraint("Vertical", 7, 2, 8, 2),
    Sketcher.Constraint("Equal", 3, 5),
    Sketcher.Constraint("DistanceY", 0, 2, 0, 1, 15.0),
    Sketcher.Constraint("DistanceX", 0, 2, 5, 2, 34.0),
    Sketcher.Constraint("DistanceX", 1, 1, 1, 2, 4.95),
    Sketcher.Constraint("DistanceX", 9, 1, 9, 2, 6.078763),
    Sketcher.Constraint("DistanceY", 8, 2, 8, 1, 4.767996),
    Sketcher.Constraint("DistanceY", 0, 2, -1, 1, 44.041311),
    Sketcher.Constraint("DistanceX", -1, 1, 9, 2, 18.278869),
    Sketcher.Constraint("DistanceY", 10, 2, -1, 1, 46.607961),
])
pocket11 = body.newObject("PartDesign::Pocket", "Pocket010")
pocket11.Profile = sketch14
pocket11.Length = 3
pocket11.Reversed = True

sketch15 = body.newObject("Sketcher::SketchObject", "Sketch014")
sketch15.AttachmentSupport = (doc.getObject("XZ_Plane"), [""])
sketch15.MapMode = "FlatFace"
sketch15.addGeometry([
    Part.LineSegment(App.Vector(-62, -85, 0), App.Vector(-25.605, -85, 0)),
    Part.LineSegment(App.Vector(-25.605, -85, 0), App.Vector(-25.605, -72, 0)),
    Part.LineSegment(App.Vector(-25.605, -72, 0), App.Vector(-70, -72, 0)),
    Part.LineSegment(App.Vector(-70, -72, 0), App.Vector(-70, -77, 0)),
    Part.ArcOfCircle(Part.Circle(App.Vector(-62, -77, 0), App.Vector(0, 0, 1), 8), math.radians(-180), math.radians(-90)),
    Part.LineSegment(App.Vector(25.605, -72, 0), App.Vector(25.605, -85, 0)),
    Part.LineSegment(App.Vector(25.605, -85, 0), App.Vector(62, -85, 0)),
    Part.ArcOfCircle(Part.Circle(App.Vector(62, -77, 0), App.Vector(0, 0, 1), 8), math.radians(-90), math.radians(0)),
    Part.LineSegment(App.Vector(70, -77, 0), App.Vector(70, -72, 0)),
    Part.LineSegment(App.Vector(70, -72, 0), App.Vector(25.605, -72, 0)),
], False)
sketch15.addConstraint([
    Sketcher.Constraint("Coincident", 0, 2, 1, 1),
    Sketcher.Constraint("Coincident", 1, 2, 2, 1),
    Sketcher.Constraint("Coincident", 2, 2, 3, 1),
    Sketcher.Constraint("Tangent", 3, 2, 4, 1),
    Sketcher.Constraint("Tangent", 4, 2, 0, 1),
    Sketcher.Constraint("Coincident", 5, 2, 6, 1),
    Sketcher.Constraint("Tangent", 6, 2, 7, 1),
    Sketcher.Constraint("Tangent", 7, 2, 8, 1),
    Sketcher.Constraint("Coincident", 8, 2, 9, 1),
    Sketcher.Constraint("Coincident", 9, 2, 5, 1),
    Sketcher.Constraint("Horizontal", 0),
    Sketcher.Constraint("Vertical", 1),
    Sketcher.Constraint("Horizontal", 2),
    Sketcher.Constraint("Vertical", 3),
    Sketcher.Constraint("Vertical", 5),
    Sketcher.Constraint("Horizontal", 6),
    Sketcher.Constraint("Vertical", 8),
    Sketcher.Constraint("Horizontal", 9),
    Sketcher.Constraint("Equal", 4, 7),
    Sketcher.Constraint("Symmetric", 4, 3, 7, 3, -2),
    Sketcher.Constraint("Symmetric", 1, 2, 9, 2, -2),
    Sketcher.Constraint("Radius", 4, 8.0),
    Sketcher.Constraint("DistanceY", 1, 1, 1, 2, 13.0),
    Sketcher.Constraint("DistanceX", 4, 3, -1, 1, 62.0),
    Sketcher.Constraint("DistanceY", 4, 3, -1, 1, 77.0),
    Sketcher.Constraint("DistanceX", 0, 1, 0, 2, 36.395),
])
pad4 = body.newObject("PartDesign::Pad", "Pad003")
pad4.Profile = sketch15
pad4.Length = 3
pad4.Reversed = True

sketch16 = body.newObject("Sketcher::SketchObject", "Sketch015")
sketch16.AttachmentSupport = (doc.getObject("XZ_Plane"), [""])
sketch16.MapMode = "FlatFace"
sketch16.AttachmentOffset = App.Placement(App.Vector(0, 0, -3), App.Rotation())
sketch16.addGeometry(Part.Circle(App.Vector(-20, -9, 0), App.Vector(0, 0, 1), 1.5), False)
sketch16.addConstraint([
    Sketcher.Constraint("Diameter", 0, 3.0),
    Sketcher.Constraint("DistanceX", 0, 3, -1, 1, 20.0),
    Sketcher.Constraint("DistanceY", 0, 3, -1, 1, 9.0),
])
pocket12 = body.newObject("PartDesign::Pocket", "Pocket011")
pocket12.Profile = sketch16
pocket12.Type = "UpToFirst"
pocket12.Reversed = True

sketch17 = body.newObject("Sketcher::SketchObject", "Sketch016")
sketch17.AttachmentSupport = (doc.getObject("XZ_Plane"), [""])
sketch17.MapMode = "FlatFace"
sketch17.AttachmentOffset = App.Placement(App.Vector(0, 0, -3), App.Rotation())
sketch17.addGeometry(Part.Circle(App.Vector(20, -9, 0), App.Vector(0, 0, 1), 1.5), False)
sketch17.addConstraint([
    Sketcher.Constraint("Diameter", 0, 3.0),
    Sketcher.Constraint("DistanceX", -1, 1, 0, 3, 20.0),
    Sketcher.Constraint("DistanceY", 0, 3, -1, 1, 9.0),
])
pocket13 = body.newObject("PartDesign::Pocket", "Pocket012")
pocket13.Profile = sketch17
pocket13.Type = "UpToFirst"
pocket13.Reversed = True

sketch18 = body.newObject("Sketcher::SketchObject", "Sketch017")
sketch18.AttachmentSupport = (doc.getObject("XZ_Plane"), [""])
sketch18.MapMode = "FlatFace"
sketch18.AttachmentOffset = App.Placement(App.Vector(0, 0, -3), App.Rotation())
sketch18.addGeometry([
    Part.LineSegment(App.Vector(-87.931846, -12, 0), App.Vector(83.08251, -12, 0)),
    Part.LineSegment(App.Vector(83.08251, -12, 0), App.Vector(83.08251, -92.113601, 0)),
    Part.LineSegment(App.Vector(83.08251, -92.113601, 0), App.Vector(-87.931846, -92.113601, 0)),
    Part.LineSegment(App.Vector(-87.931846, -92.113601, 0), App.Vector(-87.931846, -12, 0)),
], False)
sketch18.addConstraint([
    Sketcher.Constraint("Coincident", 0, 2, 1, 1),
    Sketcher.Constraint("Coincident", 1, 2, 2, 1),
    Sketcher.Constraint("Coincident", 2, 2, 3, 1),
    Sketcher.Constraint("Coincident", 3, 2, 0, 1),
    Sketcher.Constraint("Horizontal", 0),
    Sketcher.Constraint("Vertical", 1),
    Sketcher.Constraint("Horizontal", 2),
    Sketcher.Constraint("Vertical", 3),
    Sketcher.Constraint("DistanceY", 0, 2, -1, 1, 12.0),
    Sketcher.Constraint("DistanceY", 1, 2, 1, 1, 80.113601),
    Sketcher.Constraint("DistanceX", 0, 1, 0, 2, 171.014357),
    Sketcher.Constraint("DistanceX", -1, 1, 0, 2, 83.08251),
])
pocket14 = body.newObject("PartDesign::Pocket", "Pocket013")
pocket14.Profile = sketch18
pocket14.Type = "ThroughAll"
pocket14.Reversed = True

sketch19 = body.newObject("Sketcher::SketchObject", "Sketch018")
sketch19.AttachmentSupport = (doc.getObject("XZ_Plane"), [""])
sketch19.MapMode = "FlatFace"
sketch19.AttachmentOffset = App.Placement(App.Vector(0, 0, -3), App.Rotation())
sketch19.addGeometry([
    Part.LineSegment(App.Vector(34.5, 31.4, 0), App.Vector(34.5, 80, 0)),
    Part.LineSegment(App.Vector(34.5, 80, 0), App.Vector(43.5, 80, 0)),
    Part.LineSegment(App.Vector(43.5, 80, 0), App.Vector(43.5, 31.4, 0)),
    Part.LineSegment(App.Vector(43.5, 31.4, 0), App.Vector(34.5, 31.4, 0)),
    Part.LineSegment(App.Vector(-5.968414, 31.4, 0), App.Vector(-5.968414, 59.451944, 0)),
    Part.LineSegment(App.Vector(-5.968414, 59.451944, 0), App.Vector(25.5, 59.451944, 0)),
    Part.LineSegment(App.Vector(25.5, 59.451944, 0), App.Vector(25.5, 31.4, 0)),
    Part.LineSegment(App.Vector(25.5, 31.4, 0), App.Vector(-5.968414, 31.4, 0)),
], False)
sketch19.addConstraint([
    Sketcher.Constraint("Coincident", 0, 2, 1, 1),
    Sketcher.Constraint("Coincident", 1, 2, 2, 1),
    Sketcher.Constraint("Coincident", 2, 2, 3, 1),
    Sketcher.Constraint("Coincident", 3, 2, 0, 1),
    Sketcher.Constraint("Coincident", 4, 2, 5, 1),
    Sketcher.Constraint("Coincident", 5, 2, 6, 1),
    Sketcher.Constraint("Coincident", 6, 2, 7, 1),
    Sketcher.Constraint("Coincident", 7, 2, 4, 1),
    Sketcher.Constraint("Vertical", 0),
    Sketcher.Constraint("Horizontal", 1),
    Sketcher.Constraint("Vertical", 2),
    Sketcher.Constraint("Horizontal", 3),
    Sketcher.Constraint("Vertical", 4),
    Sketcher.Constraint("Horizontal", 5),
    Sketcher.Constraint("Vertical", 6),
    Sketcher.Constraint("Horizontal", 7),
    Sketcher.Constraint("Horizontal", 3, 2, 6, 2),
    Sketcher.Constraint("DistanceX", 1, 1, 1, 2, 9.0),
    Sketcher.Constraint("DistanceY", 0, 1, 0, 2, 48.6),
    Sketcher.Constraint("DistanceY", -1, 1, 0, 2, 80.0),
    Sketcher.Constraint("DistanceX", 5, 2, 0, 2, 9.0),
    Sketcher.Constraint("DistanceX", -1, 1, 0, 2, 34.5),
    Sketcher.Constraint("DistanceX", 5, 1, 5, 2, 31.468414),
    Sketcher.Constraint("DistanceY", 4, 1, 4, 2, 28.051944),
])
pad5 = body.newObject("PartDesign::Pad", "Pad004")
pad5.Profile = sketch19
pad5.Type = "UpToLast"

sketch20 = body.newObject("Sketcher::SketchObject", "Sketch019")
sketch20.AttachmentSupport = (doc.getObject("XZ_Plane"), [""])
sketch20.MapMode = "FlatFace"
sketch20.AttachmentOffset = App.Placement(App.Vector(0, 0, -3), App.Rotation())
sketch20.addGeometry([
    Part.LineSegment(App.Vector(-48, 80, 0), App.Vector(-48, 96, 0)),
    Part.LineSegment(App.Vector(-48, 96, 0), App.Vector(48, 96, 0)),
    Part.LineSegment(App.Vector(48, 96, 0), App.Vector(48, 80, 0)),
    Part.LineSegment(App.Vector(48, 80, 0), App.Vector(-48, 80, 0)),
], False)
sketch20.addConstraint([
    Sketcher.Constraint("Coincident", 0, 2, 1, 1),
    Sketcher.Constraint("Coincident", 1, 2, 2, 1),
    Sketcher.Constraint("Coincident", 2, 2, 3, 1),
    Sketcher.Constraint("Coincident", 3, 2, 0, 1),
    Sketcher.Constraint("Vertical", 0),
    Sketcher.Constraint("Horizontal", 1),
    Sketcher.Constraint("Vertical", 2),
    Sketcher.Constraint("Horizontal", 3),
    Sketcher.Constraint("DistanceX", 1, 1, 1, 2, 96.0),
    Sketcher.Constraint("DistanceY", 0, 1, 0, 2, 16.0),
    Sketcher.Constraint("DistanceX", 0, 2, -1, 1, 48.0),
    Sketcher.Constraint("DistanceY", -1, 1, 0, 2, 96.0),
])
pocket15 = body.newObject("PartDesign::Pocket", "Pocket014")
pocket15.Profile = sketch20
pocket15.Type = "ThroughAll"
pocket15.Reversed = True

sketch21 = body.newObject("Sketcher::SketchObject", "Sketch020")
sketch21.AttachmentSupport = (doc.getObject("XZ_Plane"), [""])
sketch21.MapMode = "FlatFace"
sketch21.AttachmentOffset = App.Placement(App.Vector(0, 0, -3), App.Rotation())
sketch21.addGeometry([
    Part.LineSegment(App.Vector(-2.071808, -10.803501, 0), App.Vector(-2.071808, -7.196499, 0)),
    Part.LineSegment(App.Vector(-2.071808, -7.196499, 0), App.Vector(2.071808, -7.196499, 0)),
    Part.LineSegment(App.Vector(2.071808, -7.196499, 0), App.Vector(2.071808, -10.803501, 0)),
    Part.LineSegment(App.Vector(2.071808, -10.803501, 0), App.Vector(-2.071808, -10.803501, 0)),
], False)
sketch21.addConstraint([
    Sketcher.Constraint("Coincident", 0, 2, 1, 1),
    Sketcher.Constraint("Coincident", 1, 2, 2, 1),
    Sketcher.Constraint("Coincident", 2, 2, 3, 1),
    Sketcher.Constraint("Coincident", 3, 2, 0, 1),
    Sketcher.Constraint("Vertical", 0),
    Sketcher.Constraint("Horizontal", 1),
    Sketcher.Constraint("Vertical", 2),
    Sketcher.Constraint("Horizontal", 3),
    Sketcher.Constraint("DistanceY", 0, 2, -1, 1, 7.196499),
    Sketcher.Constraint("DistanceY", 2, 2, -1, 1, 10.803501),
    Sketcher.Constraint("DistanceX", 1, 1, 1, 2, 4.143615),
    Sketcher.Constraint("DistanceX", 0, 2, -1, 1, 2.071808),
])
pad6 = body.newObject("PartDesign::Pad", "Pad005")
pad6.Profile = sketch21
pad6.Length = 3
doc.recompute()

fillet = body.newObject("PartDesign::Fillet", "Fillet")
fillet.Base = (pad6, edges_at(pad6, [
    (-25.605, 1.5, -12),
    (25.605, 1.5, -12),
    (48, 1.5, 26),
    (-48, 1.5, 26),
]))
fillet.Radius = 5

sketch22 = body.newObject("Sketcher::SketchObject", "Sketch021")
sketch22.AttachmentSupport = (doc.getObject("XZ_Plane"), [""])
sketch22.MapMode = "FlatFace"
sketch22.AttachmentOffset = App.Placement(App.Vector(0, 0, -3), App.Rotation())
sketch22.addGeometry([
    Part.Circle(App.Vector(-40.170591, 61.590426, 0), App.Vector(0, 0, 1), 1.35),
    Part.Circle(App.Vector(17.829409, 61.590426, 0), App.Vector(0, 0, 1), 1.35),
    Part.Circle(App.Vector(17.829409, 12.590426, 0), App.Vector(0, 0, 1), 1.35),
], False)
sketch22.addConstraint([
    Sketcher.Constraint("Equal", 0, 1),
    Sketcher.Constraint("Equal", 1, 2),
    Sketcher.Constraint("Horizontal", 0, 3, 1, 3),
    Sketcher.Constraint("Vertical", 1, 3, 2, 3),
    Sketcher.Constraint("Diameter", 0, 2.7),
    Sketcher.Constraint("DistanceX", 0, 3, 1, 3, 58.0),
    Sketcher.Constraint("DistanceY", 2, 3, 1, 3, 49.0),
    Sketcher.Constraint("DistanceX", 0, 3, -1, 1, 40.170591),
    Sketcher.Constraint("DistanceY", -1, 1, 0, 3, 61.590426),
])
pocket16 = body.newObject("PartDesign::Pocket", "Pocket015")
pocket16.Profile = sketch22
pocket16.Type = "ThroughAll"
pocket16.Reversed = True

sketch23 = body.newObject("Sketcher::SketchObject", "Sketch022")
sketch23.AttachmentSupport = (doc.getObject("XZ_Plane"), [""])
sketch23.MapMode = "FlatFace"
sketch23.AttachmentOffset = App.Placement(App.Vector(0, 0, -3), App.Rotation())
sketch23.addGeometry([
    Part.LineSegment(App.Vector(-31, 55, 0), App.Vector(31, 55, 0)),
    Part.ArcOfCircle(Part.Circle(App.Vector(31, 50, 0), App.Vector(0, 0, 1), 5), math.radians(0), math.radians(90)),
    Part.LineSegment(App.Vector(36, 50, 0), App.Vector(36, 25, 0)),
    Part.ArcOfCircle(Part.Circle(App.Vector(31, 25, 0), App.Vector(0, 0, 1), 5), math.radians(-90), math.radians(0)),
    Part.LineSegment(App.Vector(31, 20, 0), App.Vector(-31, 20, 0)),
    Part.ArcOfCircle(Part.Circle(App.Vector(-31, 25, 0), App.Vector(0, 0, 1), 5), math.radians(180), math.radians(270)),
    Part.LineSegment(App.Vector(-36, 25, 0), App.Vector(-36, 50, 0)),
    Part.ArcOfCircle(Part.Circle(App.Vector(-31, 50, 0), App.Vector(0, 0, 1), 5), math.radians(90), math.radians(180)),
], False)
sketch23.addConstraint([
    Sketcher.Constraint("Tangent", 0, 2, 1, 2),
    Sketcher.Constraint("Tangent", 1, 1, 2, 1),
    Sketcher.Constraint("Tangent", 2, 2, 3, 2),
    Sketcher.Constraint("Tangent", 3, 1, 4, 1),
    Sketcher.Constraint("Tangent", 4, 2, 5, 2),
    Sketcher.Constraint("Tangent", 5, 1, 6, 1),
    Sketcher.Constraint("Tangent", 6, 2, 7, 2),
    Sketcher.Constraint("Tangent", 7, 1, 0, 1),
    Sketcher.Constraint("Horizontal", 0),
    Sketcher.Constraint("Vertical", 2),
    Sketcher.Constraint("Horizontal", 4),
    Sketcher.Constraint("Vertical", 6),
    Sketcher.Constraint("Equal", 1, 3),
    Sketcher.Constraint("Equal", 3, 5),
    Sketcher.Constraint("Equal", 5, 7),
    Sketcher.Constraint("Radius", 1, 5.0),
    Sketcher.Constraint("DistanceX", 0, 1, 0, 2, 62.0),
    Sketcher.Constraint("DistanceY", 2, 2, 2, 1, 25.0),
    Sketcher.Constraint("DistanceX", -1, 1, 1, 3, 31.0),
    Sketcher.Constraint("DistanceY", -1, 1, 1, 3, 50.0),
])
pocket17 = body.newObject("PartDesign::Pocket", "Pocket016")
pocket17.Profile = sketch23
pocket17.Type = "ThroughAll"
pocket17.Reversed = True

sketch24 = body.newObject("Sketcher::SketchObject", "Sketch023")
sketch24.AttachmentSupport = (doc.getObject("XZ_Plane"), [""])
sketch24.MapMode = "FlatFace"
sketch24.AttachmentOffset = App.Placement(App.Vector(0, 0, -3), App.Rotation())
sketch24.addGeometry([
    Part.LineSegment(App.Vector(-17.5, -4, 0), App.Vector(-17.5, 4, 0)),
    Part.LineSegment(App.Vector(-17.5, 4, 0), App.Vector(17.5, 4, 0)),
    Part.LineSegment(App.Vector(17.5, 4, 0), App.Vector(17.5, -4, 0)),
    Part.LineSegment(App.Vector(17.5, -4, 0), App.Vector(-17.5, -4, 0)),
], False)
sketch24.addConstraint([
    Sketcher.Constraint("Coincident", 0, 2, 1, 1),
    Sketcher.Constraint("Coincident", 1, 2, 2, 1),
    Sketcher.Constraint("Coincident", 2, 2, 3, 1),
    Sketcher.Constraint("Coincident", 3, 2, 0, 1),
    Sketcher.Constraint("Vertical", 0),
    Sketcher.Constraint("Horizontal", 1),
    Sketcher.Constraint("Vertical", 2),
    Sketcher.Constraint("Horizontal", 3),
    Sketcher.Constraint("Symmetric", 0, 2, 2, 2, -1, 1),
    Sketcher.Constraint("DistanceX", 1, 1, 1, 2, 35.0),
    Sketcher.Constraint("DistanceY", 0, 1, 0, 2, 8.0),
])
pocket18 = body.newObject("PartDesign::Pocket", "Pocket017")
pocket18.Profile = sketch24
pocket18.Type = "ThroughAll"
pocket18.Reversed = True

sketch25 = body.newObject("Sketcher::SketchObject", "Sketch024")
sketch25.AttachmentSupport = (doc.getObject("XZ_Plane"), [""])
sketch25.MapMode = "FlatFace"
sketch25.AttachmentOffset = App.Placement(App.Vector(0, 0, -3), App.Rotation())
sketch25.addGeometry([
    Part.Circle(App.Vector(-36, 74.4, 0), App.Vector(0, 0, 1), 1.5),
    Part.Circle(App.Vector(36, 74.4, 0), App.Vector(0, 0, 1), 1.5),
], False)
sketch25.addConstraint([
    Sketcher.Constraint("Equal", 0, 1),
    Sketcher.Constraint("Symmetric", 0, 3, 1, 3, -2),
    Sketcher.Constraint("Diameter", 0, 3.0),
    Sketcher.Constraint("DistanceX", 0, 3, -1, 1, 36.0),
    Sketcher.Constraint("DistanceY", -1, 1, 0, 3, 74.4),
])
pocket19 = body.newObject("PartDesign::Pocket", "Pocket018")
pocket19.Profile = sketch25
pocket19.Type = "ThroughAll"
pocket19.Reversed = True

doc.recompute()
